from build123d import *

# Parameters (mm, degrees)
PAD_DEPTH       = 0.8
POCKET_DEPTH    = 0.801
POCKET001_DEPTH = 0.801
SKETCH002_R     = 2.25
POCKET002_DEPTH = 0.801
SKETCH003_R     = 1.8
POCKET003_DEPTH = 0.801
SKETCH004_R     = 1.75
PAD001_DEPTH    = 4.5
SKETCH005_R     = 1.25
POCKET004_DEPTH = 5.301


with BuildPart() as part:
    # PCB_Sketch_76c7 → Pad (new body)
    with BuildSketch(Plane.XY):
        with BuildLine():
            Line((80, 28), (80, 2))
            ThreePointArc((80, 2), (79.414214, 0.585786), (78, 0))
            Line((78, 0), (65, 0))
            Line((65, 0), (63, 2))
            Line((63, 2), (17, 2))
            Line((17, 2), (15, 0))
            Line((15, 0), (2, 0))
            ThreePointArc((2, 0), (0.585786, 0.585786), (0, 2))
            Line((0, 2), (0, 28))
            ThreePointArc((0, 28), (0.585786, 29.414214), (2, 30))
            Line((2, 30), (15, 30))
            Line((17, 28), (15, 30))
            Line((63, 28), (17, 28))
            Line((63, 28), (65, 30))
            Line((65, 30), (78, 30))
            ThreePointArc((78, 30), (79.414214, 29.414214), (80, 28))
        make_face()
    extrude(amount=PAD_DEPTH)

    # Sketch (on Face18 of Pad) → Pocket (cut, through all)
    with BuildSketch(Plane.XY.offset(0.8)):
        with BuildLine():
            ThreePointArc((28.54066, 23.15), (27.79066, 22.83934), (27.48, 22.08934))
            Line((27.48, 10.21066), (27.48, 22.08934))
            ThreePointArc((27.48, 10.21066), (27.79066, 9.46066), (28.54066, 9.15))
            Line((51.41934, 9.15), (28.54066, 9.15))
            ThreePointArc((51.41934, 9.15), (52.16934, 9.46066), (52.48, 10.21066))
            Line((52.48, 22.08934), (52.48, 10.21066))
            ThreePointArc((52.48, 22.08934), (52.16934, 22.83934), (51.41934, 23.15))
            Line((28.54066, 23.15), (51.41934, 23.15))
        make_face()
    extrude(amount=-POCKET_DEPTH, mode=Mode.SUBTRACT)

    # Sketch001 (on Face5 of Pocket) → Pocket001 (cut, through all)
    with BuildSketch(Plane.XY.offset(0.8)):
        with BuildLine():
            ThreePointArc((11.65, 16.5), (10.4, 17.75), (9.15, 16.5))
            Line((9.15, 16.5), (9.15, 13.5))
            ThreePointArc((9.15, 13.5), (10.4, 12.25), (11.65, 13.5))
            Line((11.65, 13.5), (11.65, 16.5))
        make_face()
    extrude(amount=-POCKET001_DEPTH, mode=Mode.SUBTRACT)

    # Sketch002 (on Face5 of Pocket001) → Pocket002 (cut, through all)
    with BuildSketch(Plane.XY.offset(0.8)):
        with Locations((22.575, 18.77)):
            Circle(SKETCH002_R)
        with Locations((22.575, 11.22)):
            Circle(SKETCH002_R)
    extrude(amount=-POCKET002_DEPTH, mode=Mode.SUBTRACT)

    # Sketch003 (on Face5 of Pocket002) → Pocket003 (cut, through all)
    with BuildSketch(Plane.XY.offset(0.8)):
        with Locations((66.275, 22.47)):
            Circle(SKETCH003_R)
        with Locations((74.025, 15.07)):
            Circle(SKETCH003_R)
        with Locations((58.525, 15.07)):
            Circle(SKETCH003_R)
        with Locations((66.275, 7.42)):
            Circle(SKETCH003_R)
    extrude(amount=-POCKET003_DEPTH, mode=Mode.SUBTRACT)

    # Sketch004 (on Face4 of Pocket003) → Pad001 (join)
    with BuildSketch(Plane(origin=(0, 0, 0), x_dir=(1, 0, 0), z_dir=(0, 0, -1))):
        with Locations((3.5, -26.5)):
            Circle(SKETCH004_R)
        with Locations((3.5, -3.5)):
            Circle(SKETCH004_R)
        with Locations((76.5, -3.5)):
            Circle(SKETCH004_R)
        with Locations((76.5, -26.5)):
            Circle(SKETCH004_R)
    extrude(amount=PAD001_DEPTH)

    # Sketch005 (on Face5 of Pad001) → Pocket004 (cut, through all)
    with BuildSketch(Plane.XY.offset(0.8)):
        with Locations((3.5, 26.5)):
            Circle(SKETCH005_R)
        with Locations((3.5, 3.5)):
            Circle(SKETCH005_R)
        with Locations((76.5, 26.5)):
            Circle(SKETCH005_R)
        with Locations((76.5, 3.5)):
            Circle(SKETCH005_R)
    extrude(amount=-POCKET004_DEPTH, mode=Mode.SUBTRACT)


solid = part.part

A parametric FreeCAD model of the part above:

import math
import FreeCAD as App
import Part
import Sketcher
from FreeCAD import Vector
Q = App.Units.Quantity

doc = App.newDocument("Part")
body = doc.addObject("PartDesign::Body", "Body")

sketch1 = body.newObject("Sketcher::SketchObject", "Sketch")
sketch1.AttachmentSupport = (doc.getObject("XY_Plane"), [""])
sketch1.MapMode = "FlatFace"
sketch1.addGeometry(Part.LineSegment(Vector(80, 2, 0), Vector(80, 28, 0)), False)
sketch1.addGeometry(Part.ArcOfCircle(Part.Circle(Vector(78, 28, 0), Vector(0, 0, 1), 2), math.radians(0), math.radians(90)), False)
sketch1.addGeometry(Part.LineSegment(Vector(78, 30, 0), Vector(65, 30, 0)), False)
sketch1.addGeometry(Part.LineSegment(Vector(65, 30, 0), Vector(63, 28, 0)), False)
sketch1.addGeometry(Part.LineSegment(Vector(63, 28, 0), Vector(17, 28, 0)), False)
sketch1.addGeometry(Part.LineSegment(Vector(17, 28, 0), Vector(15, 30, 0)), False)
sketch1.addGeometry(Part.LineSegment(Vector(15, 30, 0), Vector(2, 30, 0)), False)
sketch1.addGeometry(Part.ArcOfCircle(Part.Circle(Vector(2, 28, 0), Vector(0, 0, 1), 2), math.radians(90), math.radians(180)), False)
sketch1.addGeometry(Part.LineSegment(Vector(0, 28, 0), Vector(0, 2, 0)), False)
sketch1.addGeometry(Part.ArcOfCircle(Part.Circle(Vector(2, 2, 0), Vector(0, 0, 1), 2), math.radians(180), math.radians(270)), False)
sketch1.addGeometry(Part.LineSegment(Vector(2, 0, 0), Vector(15, 0, 0)), False)
sketch1.addGeometry(Part.LineSegment(Vector(15, 0, 0), Vector(17, 2, 0)), False)
sketch1.addGeometry(Part.LineSegment(Vector(17, 2, 0), Vector(63, 2, 0)), False)
sketch1.addGeometry(Part.LineSegment(Vector(63, 2, 0), Vector(65, 0, 0)), False)
sketch1.addGeometry(Part.LineSegment(Vector(65, 0, 0), Vector(78, 0, 0)), False)
sketch1.addGeometry(Part.ArcOfCircle(Part.Circle(Vector(78, 2, 0), Vector(0, 0, 1), 2), math.radians(-90), math.radians(0)), False)
sketch1.addConstraint(Sketcher.Constraint("Tangent", 0, 2, 1, 1))
sketch1.addConstraint(Sketcher.Constraint("Tangent", 1, 2, 2, 1))
sketch1.addConstraint(Sketcher.Constraint("Coincident", 2, 2, 3, 1))
sketch1.addConstraint(Sketcher.Constraint("Coincident", 3, 2, 4, 1))
sketch1.addConstraint(Sketcher.Constraint("Coincident", 4, 2, 5, 1))
sketch1.addConstraint(Sketcher.Constraint("Coincident", 5, 2, 6, 1))
sketch1.addConstraint(Sketcher.Constraint("Tangent", 6, 2, 7, 1))
sketch1.addConstraint(Sketcher.Constraint("Tangent", 7, 2, 8, 1))
sketch1.addConstraint(Sketcher.Constraint("Tangent", 8, 2, 9, 1))
sketch1.addConstraint(Sketcher.Constraint("Tangent", 9, 2, 10, 1))
sketch1.addConstraint(Sketcher.Constraint("Coincident", 10, 2, 11, 1))
sketch1.addConstraint(Sketcher.Constraint("Coincident", 11, 2, 12, 1))
sketch1.addConstraint(Sketcher.Constraint("Coincident", 12, 2, 13, 1))
sketch1.addConstraint(Sketcher.Constraint("Coincident", 13, 2, 14, 1))
sketch1.addConstraint(Sketcher.Constraint("Tangent", 14, 2, 15, 1))
sketch1.addConstraint(Sketcher.Constraint("Tangent", 15, 2, 0, 1))
sketch1.addConstraint(Sketcher.Constraint("Vertical", 0))
sketch1.addConstraint(Sketcher.Constraint("Horizontal", 2))
sketch1.addConstraint(Sketcher.Constraint("Horizontal", 4))
sketch1.addConstraint(Sketcher.Constraint("Horizontal", 6))
sketch1.addConstraint(Sketcher.Constraint("Vertical", 8))
sketch1.addConstraint(Sketcher.Constraint("Horizontal", 10))
sketch1.addConstraint(Sketcher.Constraint("Horizontal", 12))
sketch1.addConstraint(Sketcher.Constraint("Horizontal", 14))
sketch1.addConstraint(Sketcher.Constraint("Equal", 1, 7))
sketch1.addConstraint(Sketcher.Constraint("Equal", 7, 9))
sketch1.addConstraint(Sketcher.Constraint("Equal", 9, 15))
sketch1.addConstraint(Sketcher.Constraint("PointOnObject", 7, 2, -2))
sketch1.addConstraint(Sketcher.Constraint("PointOnObject", 9, 2, -1))
sketch1.addConstraint(Sketcher.Constraint("PointOnObject", 13, 2, -1))
sketch1.addConstraint(Sketcher.Constraint("Perpendicular", 3, 5))
sketch1.addConstraint(Sketcher.Constraint("Perpendicular", 5, 11))
sketch1.addConstraint(Sketcher.Constraint("Perpendicular", 11, 13))
sketch1.addConstraint(Sketcher.Constraint("Horizontal", 1, 3, 7, 3))
sketch1.addConstraint(Sketcher.Constraint("Horizontal", 0, 2, 3, 2))
sketch1.addConstraint(Sketcher.Constraint("Horizontal", 8, 2, 11, 2))
sketch1.addConstraint(Sketcher.Constraint("Vertical", 5, 2, 10, 2))
sketch1.addConstraint(Sketcher.Constraint("Vertical", 4, 2, 11, 2))
sketch1.addConstraint(Sketcher.Constraint("Vertical", 3, 2, 12, 2))
sketch1.addConstraint(Sketcher.Constraint("Equal", 2, 6))
sketch1.addConstraint(Sketcher.Constraint("Radius", 1, Q("1.999999 mm")))
sketch1.addConstraint(Sketcher.Constraint("DistanceX", 2, 2, 2, 1, Q("13 mm")))
sketch1.addConstraint(Sketcher.Constraint("DistanceX", 4, 2, 4, 1, Q("46 mm")))
sketch1.addConstraint(Sketcher.Constraint("DistanceY", 0, 1, 0, 2, Q("26 mm")))
pad1 = body.newObject("PartDesign::Pad", "Pad")
pad1.Profile = sketch1
pad1.Length = 0.8

sketch2 = body.newObject("Sketcher::SketchObject", "Sketch001")
sketch2.AttachmentSupport = (doc.getObject("XY_Plane"), [""])
sketch2.MapMode = "FlatFace"
sketch2.AttachmentOffset = App.Placement(Vector(0, 0, 0.8), App.Rotation())
sketch2.addGeometry(Part.ArcOfCircle(Part.Circle(Vector(28.5, 22.1, 0), Vector(0, 0, 1), 1.1), math.radians(90), math.radians(180)), False)
sketch2.addGeometry(Part.LineSegment(Vector(27.5, 22.1, 0), Vector(27.5, 10.2, 0)), False)
sketch2.addGeometry(Part.ArcOfCircle(Part.Circle(Vector(28.5, 10.2, 0), Vector(0, 0, 1), 1.1), math.radians(180), math.radians(270)), False)
sketch2.addGeometry(Part.LineSegment(Vector(28.5, 9.2, 0), Vector(51.4, 9.2, 0)), False)
sketch2.addGeometry(Part.ArcOfCircle(Part.Circle(Vector(51.4, 10.2, 0), Vector(0, 0, 1), 1.1), math.radians(-90), math.radians(0)), False)
sketch2.addGeometry(Part.LineSegment(Vector(52.5, 10.2, 0), Vector(52.5, 22.1, 0)), False)
sketch2.addGeometry(Part.ArcOfCircle(Part.Circle(Vector(51.4, 22.1, 0), Vector(0, 0, 1), 1.1), math.radians(0), math.radians(90)), False)
sketch2.addGeometry(Part.LineSegment(Vector(51.4, 23.1, 0), Vector(28.5, 23.1, 0)), False)
sketch2.addConstraint(Sketcher.Constraint("Tangent", 0, 2, 1, 1))
sketch2.addConstraint(Sketcher.Constraint("Tangent", 1, 2, 2, 1))
sketch2.addConstraint(Sketcher.Constraint("Tangent", 2, 2, 3, 1))
sketch2.addConstraint(Sketcher.Constraint("Tangent", 3, 2, 4, 1))
sketch2.addConstraint(Sketcher.Constraint("Tangent", 4, 2, 5, 1))
sketch2.addConstraint(Sketcher.Constraint("Tangent", 5, 2, 6, 1))
sketch2.addConstraint(Sketcher.Constraint("Tangent", 6, 2, 7, 1))
sketch2.addConstraint(Sketcher.Constraint("Tangent", 7, 2, 0, 1))
sketch2.addConstraint(Sketcher.Constraint("Vertical", 1))
sketch2.addConstraint(Sketcher.Constraint("Horizontal", 3))
sketch2.addConstraint(Sketcher.Constraint("Vertical", 5))
sketch2.addConstraint(Sketcher.Constraint("Horizontal", 7))
sketch2.addConstraint(Sketcher.Constraint("Equal", 0, 2))
sketch2.addConstraint(Sketcher.Constraint("Equal", 2, 4))
sketch2.addConstraint(Sketcher.Constraint("Equal", 4, 6))
sketch2.addConstraint(Sketcher.Constraint("DistanceY", 3, 2, 6, 2, Q("14 mm")))
sketch2.addConstraint(Sketcher.Constraint("DistanceX", -1, 1, 0, 2, Q("27.48 mm")))
sketch2.addConstraint(Sketcher.Constraint("DistanceY", -1, 1, 2, 2, Q("9.15 mm")))
sketch2.addConstraint(Sketcher.Constraint("DistanceX", -1, 1, 4, 2, Q("52.48 mm")))
sketch2.addConstraint(Sketcher.Constraint("Radius", 0, Q("1.06066 mm")))
pocket1 = body.newObject("PartDesign::Pocket", "Pocket")
pocket1.Profile = sketch2
pocket1.Type = "ThroughAll"

sketch3 = body.newObject("Sketcher::SketchObject", "Sketch002")
sketch3.AttachmentSupport = (doc.getObject("XY_Plane"), [""])
sketch3.MapMode = "FlatFace"
sketch3.AttachmentOffset = App.Placement(Vector(0, 0, 0.8), App.Rotation())
sketch3.addGeometry(Part.ArcOfCircle(Part.Circle(Vector(10.4, 16.5, 0), Vector(0, 0, 1), 1.2), math.radians(0), math.radians(180)), False)
sketch3.addGeometry(Part.LineSegment(Vector(9.2, 16.5, 0), Vector(9.2, 13.5, 0)), False)
sketch3.addGeometry(Part.ArcOfCircle(Part.Circle(Vector(10.4, 13.5, 0), Vector(0, 0, 1), 1.2), math.radians(180), math.radians(360)), False)
sketch3.addGeometry(Part.LineSegment(Vector(11.7, 13.5, 0), Vector(11.7, 16.5, 0)), False)
sketch3.addConstraint(Sketcher.Constraint("Tangent", 0, 2, 1, 1))
sketch3.addConstraint(Sketcher.Constraint("Tangent", 1, 2, 2, 1))
sketch3.addConstraint(Sketcher.Constraint("Tangent", 2, 2, 3, 1))
sketch3.addConstraint(Sketcher.Constraint("Tangent", 3, 2, 0, 1))
sketch3.addConstraint(Sketcher.Constraint("Vertical", 1))
sketch3.addConstraint(Sketcher.Constraint("Vertical", 3))
sketch3.addConstraint(Sketcher.Constraint("DistanceY", 1, 2, 1, 1, Q("3 mm")))
sketch3.addConstraint(Sketcher.Constraint("Radius", 0, Q("1.25 mm")))
sketch3.addConstraint(Sketcher.Constraint("DistanceX", -1, 1, 0, 3, Q("10.4 mm")))
sketch3.addConstraint(Sketcher.Constraint("DistanceY", -1, 1, 0, 3, Q("16.5 mm")))
pocket2 = body.newObject("PartDesign::Pocket", "Pocket001")
pocket2.Profile = sketch3
pocket2.Type = "ThroughAll"

sketch4 = body.newObject("Sketcher::SketchObject", "Sketch003")
sketch4.AttachmentSupport = (doc.getObject("XY_Plane"), [""])
sketch4.MapMode = "FlatFace"
sketch4.AttachmentOffset = App.Placement(Vector(0, 0, 0.8), App.Rotation())
sketch4.addGeometry(Part.Circle(Vector(22.6, 18.8, 0), Vector(0, 0, 1), 2.2), False)
sketch4.addGeometry(Part.Circle(Vector(22.6, 11.2, 0), Vector(0, 0, 1), 2.2), False)
sketch4.addConstraint(Sketcher.Constraint("Equal", 0, 1))
sketch4.addConstraint(Sketcher.Constraint("Vertical", 0, 3, 1, 3))
sketch4.addConstraint(Sketcher.Constraint("Diameter", 0, Q("4.5 mm")))
sketch4.addConstraint(Sketcher.Constraint("DistanceY", -1, 1, 0, 3, Q("18.77 mm")))
sketch4.addConstraint(Sketcher.Constraint("DistanceY", -1, 1, 1, 3, Q("11.22 mm")))
sketch4.addConstraint(Sketcher.Constraint("DistanceX", -1, 1, 0, 3, Q("22.575 mm")))
pocket3 = body.newObject("PartDesign::Pocket", "Pocket002")
pocket3.Profile = sketch4
pocket3.Type = "ThroughAll"

sketch5 = body.newObject("Sketcher::SketchObject", "Sketch004")
sketch5.AttachmentSupport = (doc.getObject("XY_Plane"), [""])
sketch5.MapMode = "FlatFace"
sketch5.AttachmentOffset = App.Placement(Vector(0, 0, 0.8), App.Rotation())
sketch5.addGeometry(Part.Circle(Vector(66.3, 22.5, 0), Vector(0, 0, 1), 1.8), False)
sketch5.addGeometry(Part.Circle(Vector(74, 15.1, 0), Vector(0, 0, 1), 1.8), False)
sketch5.addGeometry(Part.Circle(Vector(58.5, 15.1, 0), Vector(0, 0, 1), 1.8), False)
sketch5.addGeometry(Part.Circle(Vector(66.3, 7.4, 0), Vector(0, 0, 1), 1.8), False)
sketch5.addConstraint(Sketcher.Constraint("Equal", 0, 1))
sketch5.addConstraint(Sketcher.Constraint("Equal", 1, 2))
sketch5.addConstraint(Sketcher.Constraint("Equal", 2, 3))
sketch5.addConstraint(Sketcher.Constraint("Horizontal", 1, 3, 2, 3))
sketch5.addConstraint(Sketcher.Constraint("Vertical", 0, 3, 3, 3))
sketch5.addConstraint(Sketcher.Constraint("Diameter", 0, Q("3.6 mm")))
sketch5.addConstraint(Sketcher.Constraint("DistanceY", 1, 3, 0, 3, Q("7.4 mm")))
sketch5.addConstraint(Sketcher.Constraint("DistanceX", 2, 3, 1, 3, Q("15.5 mm")))
sketch5.addConstraint(Sketcher.Constraint("DistanceY", -1, 1, 0, 3, Q("22.47 mm")))
sketch5.addConstraint(Sketcher.Constraint("DistanceY", -1, 1, 3, 3, Q("7.42 mm")))
sketch5.addConstraint(Sketcher.Constraint("DistanceX", 0, 3, 1, 3, Q("7.75 mm")))
sketch5.addConstraint(Sketcher.Constraint("DistanceX", -1, 1, 0, 3, Q("66.275 mm")))
pocket4 = body.newObject("PartDesign::Pocket", "Pocket003")
pocket4.Profile = sketch5
pocket4.Type = "ThroughAll"

sketch6 = body.newObject("Sketcher::SketchObject", "Sketch005")
sketch6.AttachmentSupport = (doc.getObject("XY_Plane"), [""])
sketch6.MapMode = "FlatFace"
sketch6.addGeometry(Part.Circle(Vector(3.5, 26.5, 0), Vector(0, 0, 1), 1.8), False)
sketch6.addGeometry(Part.Circle(Vector(3.5, 3.5, 0), Vector(0, 0, 1), 1.8), False)
sketch6.addGeometry(Part.Circle(Vector(76.5, 3.5, 0), Vector(0, 0, 1), 1.8), False)
sketch6.addGeometry(Part.Circle(Vector(76.5, 26.5, 0), Vector(0, 0, 1), 1.8), False)
sketch6.addConstraint(Sketcher.Constraint("Equal", 0, 1))
sketch6.addConstraint(Sketcher.Constraint("Equal", 1, 2))
sketch6.addConstraint(Sketcher.Constraint("Equal", 2, 3))
sketch6.addConstraint(Sketcher.Constraint("Horizontal", 1, 3, 2, 3))
sketch6.addConstraint(Sketcher.Constraint("Horizontal", 0, 3, 3, 3))
sketch6.addConstraint(Sketcher.Constraint("Vertical", 0, 3, 1, 3))
sketch6.addConstraint(Sketcher.Constraint("Vertical", 2, 3, 3, 3))
sketch6.addConstraint(Sketcher.Constraint("Diameter", 0, Q("3.5 mm")))
sketch6.addConstraint(Sketcher.Constraint("DistanceY", 1, 3, 0, 3, Q("23 mm")))
sketch6.addConstraint(Sketcher.Constraint("DistanceX", 1, 3, 2, 3, Q("73 mm")))
sketch6.addConstraint(Sketcher.Constraint("DistanceX", -1, 1, 0, 3, Q("3.5 mm")))
sketch6.addConstraint(Sketcher.Constraint("DistanceY", -1, 1, 0, 3, Q("26.5 mm")))
pad2 = body.newObject("PartDesign::Pad", "Pad001")
pad2.Profile = sketch6
pad2.Length = 4.5
pad2.Reversed = True

sketch7 = body.newObject("Sketcher::SketchObject", "Sketch006")
sketch7.AttachmentSupport = (doc.getObject("XY_Plane"), [""])
sketch7.MapMode = "FlatFace"
sketch7.AttachmentOffset = App.Placement(Vector(0, 0, 0.8), App.Rotation())
sketch7.addGeometry(Part.Circle(Vector(3.5, 26.5, 0), Vector(0, 0, 1), 1.2), False)
sketch7.addGeometry(Part.Circle(Vector(3.5, 3.5, 0), Vector(0, 0, 1), 1.2), False)
sketch7.addGeometry(Part.Circle(Vector(76.5, 26.5, 0), Vector(0, 0, 1), 1.2), False)
sketch7.addGeometry(Part.Circle(Vector(76.5, 3.5, 0), Vector(0, 0, 1), 1.2), False)
sketch7.addConstraint(Sketcher.Constraint("Equal", 0, 1))
sketch7.addConstraint(Sketcher.Constraint("Equal", 1, 2))
sketch7.addConstraint(Sketcher.Constraint("Equal", 2, 3))
sketch7.addConstraint(Sketcher.Constraint("Horizontal", 0, 3, 2, 3))
sketch7.addConstraint(Sketcher.Constraint("Horizontal", 1, 3, 3, 3))
sketch7.addConstraint(Sketcher.Constraint("Vertical", 0, 3, 1, 3))
sketch7.addConstraint(Sketcher.Constraint("Vertical", 2, 3, 3, 3))
sketch7.addConstraint(Sketcher.Constraint("Diameter", 0, Q("2.5 mm")))
sketch7.addConstraint(Sketcher.Constraint("DistanceY", 1, 3, 0, 3, Q("23 mm")))
sketch7.addConstraint(Sketcher.Constraint("DistanceX", 0, 3, 2, 3, Q("73 mm")))
sketch7.addConstraint(Sketcher.Constraint("DistanceX", -1, 1, 0, 3, Q("3.5 mm")))
sketch7.addConstraint(Sketcher.Constraint("DistanceY", -1, 1, 0, 3, Q("26.5 mm")))
pocket5 = body.newObject("PartDesign::Pocket", "Pocket004")
pocket5.Profile = sketch7
pocket5.Type = "ThroughAll"

doc.recompute()
